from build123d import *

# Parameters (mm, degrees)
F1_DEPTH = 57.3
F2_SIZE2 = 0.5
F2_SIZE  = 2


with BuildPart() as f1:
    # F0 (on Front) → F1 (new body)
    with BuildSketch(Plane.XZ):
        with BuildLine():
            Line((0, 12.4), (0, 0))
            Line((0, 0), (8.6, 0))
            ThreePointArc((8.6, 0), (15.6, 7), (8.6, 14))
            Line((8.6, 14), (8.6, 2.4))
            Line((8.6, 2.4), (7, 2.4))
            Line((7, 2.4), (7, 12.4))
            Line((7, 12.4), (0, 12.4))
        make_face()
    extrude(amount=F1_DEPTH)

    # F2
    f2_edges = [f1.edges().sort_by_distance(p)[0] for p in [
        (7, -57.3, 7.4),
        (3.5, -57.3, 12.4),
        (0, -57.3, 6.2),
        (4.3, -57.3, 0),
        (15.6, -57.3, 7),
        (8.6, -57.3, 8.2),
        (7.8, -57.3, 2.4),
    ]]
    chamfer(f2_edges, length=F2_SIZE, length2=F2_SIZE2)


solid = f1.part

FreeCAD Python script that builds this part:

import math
import FreeCAD as App
import Part
import Sketcher

V = App.Vector
Q = App.Units.Quantity


def edges_at(feature, points):
    """Names of the edges that pass closest to the given points."""
    edges = feature.Shape.Edges
    near = lambda p: min(range(len(edges)), key=lambda i: edges[i].distToShape(Part.Vertex(*p))[0])
    return sorted({f"Edge{near(p) + 1}" for p in points})

doc = App.newDocument("Part")
body = doc.addObject("PartDesign::Body", "Body")

sketch1 = body.newObject("Sketcher::SketchObject", "Sketch")
sketch1.AttachmentSupport = (doc.getObject("XZ_Plane"), [""])
sketch1.MapMode = "FlatFace"
sketch1.addGeometry([
    Part.LineSegment(V(0, 12.4, 0), V(0, 0, 0)),
    Part.LineSegment(V(0, 0, 0), V(8.6, 0, 0)),
    Part.ArcOfCircle(Part.Circle(V(8.6, 7, 0), V(0, 0, 1), 7), math.radians(-90), math.radians(90)),
    Part.LineSegment(V(8.6, 14, 0), V(8.6, 2.4, 0)),
    Part.LineSegment(V(8.6, 2.4, 0), V(7, 2.4, 0)),
    Part.LineSegment(V(7, 2.4, 0), V(7, 12.4, 0)),
    Part.LineSegment(V(7, 12.4, 0), V(0, 12.4, 0)),
], False)
sketch1.addConstraint([
    Sketcher.Constraint("Coincident", 0, 2, 1, 1),
    Sketcher.Constraint("Tangent", 1, 2, 2, 1),
    Sketcher.Constraint("Coincident", 2, 2, 3, 1),
    Sketcher.Constraint("Coincident", 3, 2, 4, 1),
    Sketcher.Constraint("Coincident", 4, 2, 5, 1),
    Sketcher.Constraint("Coincident", 5, 2, 6, 1),
    Sketcher.Constraint("Coincident", 6, 2, 0, 1),
    Sketcher.Constraint("Vertical", 0),
    Sketcher.Constraint("Horizontal", 1),
    Sketcher.Constraint("Vertical", 3),
    Sketcher.Constraint("Horizontal", 4),
    Sketcher.Constraint("Vertical", 5),
    Sketcher.Constraint("Horizontal", 6),
    Sketcher.Constraint("Coincident", 0, 2, -1, 1),
    Sketcher.Constraint("Vertical", 1, 2, 2, 2),
    Sketcher.Constraint("Radius", 2, Q("7 mm")),
    Sketcher.Constraint("DistanceX", 6, 2, 6, 1, Q("7 mm")),
    Sketcher.Constraint("DistanceY", 5, 1, 5, 2, Q("10 mm")),
    Sketcher.Constraint("DistanceX", 1, 1, 1, 2, Q("8.6 mm")),
    Sketcher.Constraint("DistanceY", 0, 2, 0, 1, Q("12.4 mm")),
])
pad1 = body.newObject("PartDesign::Pad", "Pad")
pad1.Profile = sketch1
pad1.Length = 57.3
doc.recompute()

chamfer = body.newObject("PartDesign::Chamfer", "Chamfer")
chamfer.Base = (pad1, edges_at(pad1, [
    (7, -57.3, 7.4),
    (3.5, -57.3, 12.4),
    (0, -57.3, 6.2),
    (4.3, -57.3, 0),
    (15.6, -57.3, 7),
    (8.6, -57.3, 8.2),
    (7.8, -57.3, 2.4),
]))
chamfer.ChamferType = "Two distances"
chamfer.Size = 2
chamfer.Size2 = 0.5

doc.recompute()
